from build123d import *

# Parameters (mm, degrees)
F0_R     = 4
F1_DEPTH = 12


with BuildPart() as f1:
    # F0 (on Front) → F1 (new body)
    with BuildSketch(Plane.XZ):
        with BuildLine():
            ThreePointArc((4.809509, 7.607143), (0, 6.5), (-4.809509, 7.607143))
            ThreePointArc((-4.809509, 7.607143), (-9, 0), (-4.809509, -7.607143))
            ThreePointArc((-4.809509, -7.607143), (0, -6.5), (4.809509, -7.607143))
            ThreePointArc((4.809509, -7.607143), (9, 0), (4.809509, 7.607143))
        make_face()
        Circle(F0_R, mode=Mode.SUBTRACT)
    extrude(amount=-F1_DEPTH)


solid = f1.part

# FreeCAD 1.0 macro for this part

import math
import FreeCAD as App
import Part
import Sketcher
from FreeCAD import Vector
Q = App.Units.Quantity

doc = App.newDocument("Part")
body = doc.addObject("PartDesign::Body", "Body")

# Sketch on XZ plane
sketch1 = body.newObject("Sketcher::SketchObject", "Sketch")
sketch1.AttachmentSupport = (doc.getObject("XZ_Plane"), [""])
sketch1.MapMode = "FlatFace"
sketch1.addGeometry(Part.ArcOfCircle(Part.Circle(Vector(0, 17.5, 0), Vector(0, 0, 1), 11), math.radians(-116), math.radians(-64)), False)
sketch1.addGeometry(Part.ArcOfCircle(Part.Circle(Vector(0, 0, 0), Vector(0, 0, 1), 9), math.radians(122), math.radians(238)), False)
sketch1.addGeometry(Part.ArcOfCircle(Part.Circle(Vector(0, -17.5, 0), Vector(0, 0, 1), 11), math.radians(64), math.radians(116)), False)
sketch1.addGeometry(Part.ArcOfCircle(Part.Circle(Vector(0, 0, 0), Vector(0, 0, 1), 9), math.radians(-58), math.radians(58)), False)
sketch1.addGeometry(Part.Circle(Vector(0, 0, 0), Vector(0, 0, 1), 4), False)
sketch1.addConstraint(Sketcher.Constraint("Coincident", 0, 1, 1, 1))
sketch1.addConstraint(Sketcher.Constraint("Coincident", 1, 2, 2, 2))
sketch1.addConstraint(Sketcher.Constraint("Coincident", 2, 1, 3, 1))
sketch1.addConstraint(Sketcher.Constraint("Coincident", 3, 2, 0, 2))
sketch1.addConstraint(Sketcher.Constraint("Coincident", 1, 3, -1, 1))
sketch1.addConstraint(Sketcher.Constraint("Coincident", 3, 3, -1, 1))
sketch1.addConstraint(Sketcher.Constraint("Coincident", 4, 3, -1, 1))
sketch1.addConstraint(Sketcher.Constraint("Equal", 0, 2))
sketch1.addConstraint(Sketcher.Constraint("Equal", 1, 3))
sketch1.addConstraint(Sketcher.Constraint("Symmetric", 0, 3, 2, 3, -1, 1))
sketch1.addConstraint(Sketcher.Constraint("PointOnObject", 0, 3, -2))
sketch1.addConstraint(Sketcher.Constraint("Diameter", 4, Q("8 mm")))
sketch1.addConstraint(Sketcher.Constraint("Radius", 0, Q("10.999998 mm")))
sketch1.addConstraint(Sketcher.Constraint("Radius", 1, Q("9 mm")))
sketch1.addConstraint(Sketcher.Constraint("DistanceY", -1, 1, 0, 3, Q("17.499998 mm")))
pad1 = body.newObject("PartDesign::Pad", "Pad")
pad1.Profile = sketch1
pad1.Length = 12
pad1.Reversed = True

doc.recompute()
